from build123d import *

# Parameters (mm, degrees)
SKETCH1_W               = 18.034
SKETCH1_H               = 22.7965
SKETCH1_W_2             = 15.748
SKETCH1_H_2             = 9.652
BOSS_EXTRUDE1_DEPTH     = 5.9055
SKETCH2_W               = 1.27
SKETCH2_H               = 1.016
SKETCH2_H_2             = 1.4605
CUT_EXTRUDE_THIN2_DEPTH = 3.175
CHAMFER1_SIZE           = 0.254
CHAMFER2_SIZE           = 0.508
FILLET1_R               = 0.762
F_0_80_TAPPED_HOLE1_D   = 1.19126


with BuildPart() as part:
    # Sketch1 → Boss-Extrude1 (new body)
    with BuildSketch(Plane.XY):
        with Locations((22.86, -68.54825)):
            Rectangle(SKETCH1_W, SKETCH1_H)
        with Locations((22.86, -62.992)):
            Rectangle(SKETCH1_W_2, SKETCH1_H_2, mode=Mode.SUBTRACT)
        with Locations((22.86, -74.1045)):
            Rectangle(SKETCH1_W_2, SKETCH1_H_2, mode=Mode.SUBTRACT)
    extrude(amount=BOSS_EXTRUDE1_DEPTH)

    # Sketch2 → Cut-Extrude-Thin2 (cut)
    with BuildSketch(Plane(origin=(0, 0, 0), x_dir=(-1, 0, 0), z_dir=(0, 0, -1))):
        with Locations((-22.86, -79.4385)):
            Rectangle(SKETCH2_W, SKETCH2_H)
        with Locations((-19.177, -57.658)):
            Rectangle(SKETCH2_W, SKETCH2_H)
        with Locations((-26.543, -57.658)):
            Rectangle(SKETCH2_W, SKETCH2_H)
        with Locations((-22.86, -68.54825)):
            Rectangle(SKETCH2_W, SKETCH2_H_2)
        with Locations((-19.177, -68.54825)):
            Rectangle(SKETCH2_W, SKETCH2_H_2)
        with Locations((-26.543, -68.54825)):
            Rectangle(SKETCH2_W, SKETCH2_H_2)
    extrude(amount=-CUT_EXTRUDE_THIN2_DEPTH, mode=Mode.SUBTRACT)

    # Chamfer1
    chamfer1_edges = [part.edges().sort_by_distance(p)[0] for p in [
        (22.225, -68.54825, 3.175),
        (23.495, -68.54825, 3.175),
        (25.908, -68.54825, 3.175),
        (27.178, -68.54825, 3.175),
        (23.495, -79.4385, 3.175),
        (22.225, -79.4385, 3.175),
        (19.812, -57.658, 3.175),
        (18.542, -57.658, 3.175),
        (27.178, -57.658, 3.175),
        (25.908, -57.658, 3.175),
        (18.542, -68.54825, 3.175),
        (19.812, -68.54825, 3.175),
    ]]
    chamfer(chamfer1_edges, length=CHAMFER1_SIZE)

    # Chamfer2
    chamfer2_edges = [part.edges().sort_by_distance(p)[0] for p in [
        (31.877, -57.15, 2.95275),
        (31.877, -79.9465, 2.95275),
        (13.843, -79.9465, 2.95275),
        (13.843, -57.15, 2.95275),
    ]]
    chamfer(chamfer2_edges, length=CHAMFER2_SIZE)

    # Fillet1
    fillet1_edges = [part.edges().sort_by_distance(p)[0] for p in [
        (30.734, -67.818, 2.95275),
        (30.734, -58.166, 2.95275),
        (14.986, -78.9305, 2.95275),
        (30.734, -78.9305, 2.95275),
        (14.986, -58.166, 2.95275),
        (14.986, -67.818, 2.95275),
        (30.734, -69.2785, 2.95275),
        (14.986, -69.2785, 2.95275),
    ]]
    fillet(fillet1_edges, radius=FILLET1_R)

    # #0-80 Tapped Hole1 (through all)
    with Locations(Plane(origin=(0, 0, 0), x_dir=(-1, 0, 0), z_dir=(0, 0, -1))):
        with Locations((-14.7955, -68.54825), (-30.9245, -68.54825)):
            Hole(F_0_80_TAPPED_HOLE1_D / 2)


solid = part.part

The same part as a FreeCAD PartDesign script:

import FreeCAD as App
import Part
import Sketcher

V = App.Vector
Q = App.Units.Quantity


def edges_at(feature, points):
    """Names of the edges that pass closest to the given points."""
    edges = feature.Shape.Edges
    near = lambda p: min(range(len(edges)), key=lambda i: edges[i].distToShape(Part.Vertex(*p))[0])
    return sorted({f"Edge{near(p) + 1}" for p in points})


def add_polygon(sketch, points):
    """Adds a closed chain of lines whose ends are joined by coincident constraints."""
    first, n = sketch.GeometryCount, len(points)
    for a, b in zip(points, points[1:] + points[:1]):
        sketch.addGeometry(Part.LineSegment(App.Vector(*a, 0), App.Vector(*b, 0)), False)
    for i in range(n):
        sketch.addConstraint(Sketcher.Constraint("Coincident", first + i, 2, first + (i + 1) % n, 1))

doc = App.newDocument("Part")
body = doc.addObject("PartDesign::Body", "Body")

sketch1 = body.newObject("Sketcher::SketchObject", "Sketch")
sketch1.AttachmentSupport = (doc.getObject("XY_Plane"), [""])
sketch1.MapMode = "FlatFace"
add_polygon(sketch1, [(13.843, -57.15), (13.843, -79.9465), (31.877, -79.9465), (31.877, -57.15)])
add_polygon(sketch1, [(30.734, -78.9305), (14.986, -78.9305), (14.986, -69.2785), (30.734, -69.2785)])
add_polygon(sketch1, [(30.734, -67.818), (14.986, -67.818), (14.986, -58.166), (30.734, -58.166)])
sketch1.addConstraint([
    Sketcher.Constraint("Vertical", 0),
    Sketcher.Constraint("Horizontal", 1),
    Sketcher.Constraint("Vertical", 2),
    Sketcher.Constraint("Horizontal", 3),
    Sketcher.Constraint("Horizontal", 4),
    Sketcher.Constraint("Vertical", 5),
    Sketcher.Constraint("Horizontal", 6),
    Sketcher.Constraint("Vertical", 7),
    Sketcher.Constraint("Horizontal", 8),
    Sketcher.Constraint("Vertical", 9),
    Sketcher.Constraint("Horizontal", 10),
    Sketcher.Constraint("Vertical", 11),
    Sketcher.Constraint("Vertical", 5, 2, 8, 2),
    Sketcher.Constraint("Vertical", 7, 2, 10, 2),
    Sketcher.Constraint("Equal", 7, 9),
    Sketcher.Constraint("DistanceX", 1, 1, 1, 2, Q("0.71 in")),
    Sketcher.Constraint("DistanceX", 4, 2, 4, 1, Q("0.62 in")),
    Sketcher.Constraint("DistanceY", 5, 1, 5, 2, Q("0.38 in")),
    Sketcher.Constraint("DistanceY", 2, 2, -1, 1, Q("2.25 in")),
    Sketcher.Constraint("DistanceX", -1, 1, 4, 2, Q("0.59 in")),
    Sketcher.Constraint("DistanceY", 8, 2, -1, 1, Q("2.67 in")),
    Sketcher.Constraint("DistanceY", 0, 2, 4, 2, Q("0.04 in")),
    Sketcher.Constraint("DistanceY", 0, 2, 0, 1, Q("0.8975 in")),
    Sketcher.Constraint("DistanceX", -1, 1, 0, 2, Q("0.545 in")),
])
pad1 = body.newObject("PartDesign::Pad", "Pad")
pad1.Profile = sketch1
pad1.Length = Q("0.2325 in")

sketch2 = body.newObject("Sketcher::SketchObject", "Sketch001")
sketch2.AttachmentSupport = (doc.getObject("XY_Plane"), [""])
sketch2.MapMode = "FlatFace"
add_polygon(sketch2, [(23.495, -78.9305), (23.495, -79.9465), (22.225, -79.9465), (22.225, -78.9305)])
add_polygon(sketch2, [(19.812, -57.15), (19.812, -58.166), (18.542, -58.166), (18.542, -57.15)])
add_polygon(sketch2, [(27.178, -57.15), (27.178, -58.166), (25.908, -58.166), (25.908, -57.15)])
add_polygon(sketch2, [(23.495, -67.818), (23.495, -69.2785), (22.225, -69.2785), (22.225, -67.818)])
add_polygon(sketch2, [(19.812, -67.818), (19.812, -69.2785), (18.542, -69.2785), (18.542, -67.818)])
add_polygon(sketch2, [(27.178, -67.818), (27.178, -69.2785), (25.908, -69.2785), (25.908, -67.818)])
sketch2.addConstraint([
    Sketcher.Constraint("Vertical", 0),
    Sketcher.Constraint("Horizontal", 1),
    Sketcher.Constraint("Vertical", 2),
    Sketcher.Constraint("Horizontal", 3),
    Sketcher.Constraint("Vertical", 4),
    Sketcher.Constraint("Horizontal", 5),
    Sketcher.Constraint("Vertical", 6),
    Sketcher.Constraint("Horizontal", 7),
    Sketcher.Constraint("Vertical", 8),
    Sketcher.Constraint("Horizontal", 9),
    Sketcher.Constraint("Vertical", 10),
    Sketcher.Constraint("Horizontal", 11),
    Sketcher.Constraint("Vertical", 12),
    Sketcher.Constraint("Horizontal", 13),
    Sketcher.Constraint("Vertical", 14),
    Sketcher.Constraint("Horizontal", 15),
    Sketcher.Constraint("Vertical", 16),
    Sketcher.Constraint("Horizontal", 17),
    Sketcher.Constraint("Vertical", 18),
    Sketcher.Constraint("Horizontal", 19),
    Sketcher.Constraint("Vertical", 20),
    Sketcher.Constraint("Horizontal", 21),
    Sketcher.Constraint("Vertical", 22),
    Sketcher.Constraint("Horizontal", 23),
    Sketcher.Constraint("Horizontal", 5, 2, 8, 2),
    Sketcher.Constraint("Horizontal", 7, 2, 10, 2),
    Sketcher.Constraint("Horizontal", 13, 2, 16, 2),
    Sketcher.Constraint("Horizontal", 15, 2, 18, 2),
    Sketcher.Constraint("Horizontal", 17, 2, 20, 2),
    Sketcher.Constraint("Horizontal", 19, 2, 22, 2),
    Sketcher.Constraint("Vertical", 3, 2, 12, 2),
    Sketcher.Constraint("Vertical", 2, 2, 13, 2),
    Sketcher.Constraint("Vertical", 7, 2, 16, 2),
    Sketcher.Constraint("Vertical", 6, 2, 17, 2),
    Sketcher.Constraint("Vertical", 11, 2, 20, 2),
    Sketcher.Constraint("Vertical", 10, 2, 21, 2),
    Sketcher.Constraint("Equal", 3, 5),
    Sketcher.Constraint("Equal", 7, 9),
    Sketcher.Constraint("Equal", 2, 4),
    Sketcher.Constraint("DistanceX", 1, 2, 1, 1, Q("0.05 in")),
    Sketcher.Constraint("DistanceY", 0, 2, 0, 1, Q("0.04 in")),
    Sketcher.Constraint("DistanceX", -1, 1, 4, 2, Q("0.78 in")),
    Sketcher.Constraint("DistanceY", 4, 2, -1, 1, Q("2.29 in")),
    Sketcher.Constraint("DistanceX", -1, 1, 8, 2, Q("1.07 in")),
    Sketcher.Constraint("DistanceY", 14, 2, -1, 1, Q("2.67 in")),
    Sketcher.Constraint("DistanceY", 3, 2, 12, 2, Q("0.38 in")),
    Sketcher.Constraint("DistanceY", 12, 2, 12, 1, Q("0.0575 in")),
    Sketcher.Constraint("DistanceX", -1, 1, 0, 2, Q("0.925 in")),
])
pocket1 = body.newObject("PartDesign::Pocket", "Pocket")
pocket1.Profile = sketch2
pocket1.Length = Q("0.125 in")
pocket1.Reversed = True
doc.recompute()

chamfer = body.newObject("PartDesign::Chamfer", "Chamfer")
chamfer.Base = (pocket1, edges_at(pocket1, [
    (22.225, -68.548, 3.175),
    (23.495, -68.548, 3.175),
    (25.908, -68.548, 3.175),
    (27.178, -68.548, 3.175),
    (23.495, -79.439, 3.175),
    (22.225, -79.439, 3.175),
    (19.812, -57.658, 3.175),
    (18.542, -57.658, 3.175),
    (27.178, -57.658, 3.175),
    (25.908, -57.658, 3.175),
    (18.542, -68.548, 3.175),
    (19.812, -68.548, 3.175),
]))
chamfer.Size = Q("0.01 in")
doc.recompute()

chamfer2 = body.newObject("PartDesign::Chamfer", "Chamfer001")
chamfer2.Base = (chamfer, edges_at(chamfer, [
    (31.877, -57.15, 2.953),
    (31.877, -79.947, 2.953),
    (13.843, -79.947, 2.953),
    (13.843, -57.15, 2.953),
]))
chamfer2.Size = Q("0.02 in")
doc.recompute()

fillet = body.newObject("PartDesign::Fillet", "Fillet")
fillet.Base = (chamfer2, edges_at(chamfer2, [
    (30.734, -67.818, 2.953),
    (30.734, -58.166, 2.953),
    (14.986, -78.93, 2.953),
    (30.734, -78.93, 2.953),
    (14.986, -58.166, 2.953),
    (14.986, -67.818, 2.953),
    (30.734, -69.278, 2.953),
    (14.986, -69.278, 2.953),
]))
fillet.Radius = Q("0.03 in")

sketch3 = body.newObject("Sketcher::SketchObject", "Sketch002")
sketch3.AttachmentSupport = (doc.getObject("XY_Plane"), [""])
sketch3.MapMode = "FlatFace"
sketch3.addGeometry([
    Part.Circle(V(14.7955, -68.54825, 0), V(0, 0, 1), 0.59563),
    Part.Circle(V(30.9245, -68.54825, 0), V(0, 0, 1), 0.59563),
], False)
sketch3.addConstraint([
    Sketcher.Constraint("Equal", 0, 1),
    Sketcher.Constraint("Horizontal", 0, 3, 1, 3),
    Sketcher.Constraint("Diameter", 0, Q("0.0469 in")),
    Sketcher.Constraint("DistanceX", 0, 3, 1, 3, Q("0.635 in")),
    Sketcher.Constraint("DistanceX", -1, 1, 0, 3, Q("0.5825 in")),
    Sketcher.Constraint("DistanceY", 0, 3, -1, 1, Q("68.54825 mm")),
])
doc.recompute()
hole = body.newObject("PartDesign::Hole", "Hole")
hole.Profile = sketch3
hole.ThreadType = "None"
hole.Diameter = Q("0.0469 in")
hole.DepthType = "ThroughAll"
hole.Reversed = True

doc.recompute()
